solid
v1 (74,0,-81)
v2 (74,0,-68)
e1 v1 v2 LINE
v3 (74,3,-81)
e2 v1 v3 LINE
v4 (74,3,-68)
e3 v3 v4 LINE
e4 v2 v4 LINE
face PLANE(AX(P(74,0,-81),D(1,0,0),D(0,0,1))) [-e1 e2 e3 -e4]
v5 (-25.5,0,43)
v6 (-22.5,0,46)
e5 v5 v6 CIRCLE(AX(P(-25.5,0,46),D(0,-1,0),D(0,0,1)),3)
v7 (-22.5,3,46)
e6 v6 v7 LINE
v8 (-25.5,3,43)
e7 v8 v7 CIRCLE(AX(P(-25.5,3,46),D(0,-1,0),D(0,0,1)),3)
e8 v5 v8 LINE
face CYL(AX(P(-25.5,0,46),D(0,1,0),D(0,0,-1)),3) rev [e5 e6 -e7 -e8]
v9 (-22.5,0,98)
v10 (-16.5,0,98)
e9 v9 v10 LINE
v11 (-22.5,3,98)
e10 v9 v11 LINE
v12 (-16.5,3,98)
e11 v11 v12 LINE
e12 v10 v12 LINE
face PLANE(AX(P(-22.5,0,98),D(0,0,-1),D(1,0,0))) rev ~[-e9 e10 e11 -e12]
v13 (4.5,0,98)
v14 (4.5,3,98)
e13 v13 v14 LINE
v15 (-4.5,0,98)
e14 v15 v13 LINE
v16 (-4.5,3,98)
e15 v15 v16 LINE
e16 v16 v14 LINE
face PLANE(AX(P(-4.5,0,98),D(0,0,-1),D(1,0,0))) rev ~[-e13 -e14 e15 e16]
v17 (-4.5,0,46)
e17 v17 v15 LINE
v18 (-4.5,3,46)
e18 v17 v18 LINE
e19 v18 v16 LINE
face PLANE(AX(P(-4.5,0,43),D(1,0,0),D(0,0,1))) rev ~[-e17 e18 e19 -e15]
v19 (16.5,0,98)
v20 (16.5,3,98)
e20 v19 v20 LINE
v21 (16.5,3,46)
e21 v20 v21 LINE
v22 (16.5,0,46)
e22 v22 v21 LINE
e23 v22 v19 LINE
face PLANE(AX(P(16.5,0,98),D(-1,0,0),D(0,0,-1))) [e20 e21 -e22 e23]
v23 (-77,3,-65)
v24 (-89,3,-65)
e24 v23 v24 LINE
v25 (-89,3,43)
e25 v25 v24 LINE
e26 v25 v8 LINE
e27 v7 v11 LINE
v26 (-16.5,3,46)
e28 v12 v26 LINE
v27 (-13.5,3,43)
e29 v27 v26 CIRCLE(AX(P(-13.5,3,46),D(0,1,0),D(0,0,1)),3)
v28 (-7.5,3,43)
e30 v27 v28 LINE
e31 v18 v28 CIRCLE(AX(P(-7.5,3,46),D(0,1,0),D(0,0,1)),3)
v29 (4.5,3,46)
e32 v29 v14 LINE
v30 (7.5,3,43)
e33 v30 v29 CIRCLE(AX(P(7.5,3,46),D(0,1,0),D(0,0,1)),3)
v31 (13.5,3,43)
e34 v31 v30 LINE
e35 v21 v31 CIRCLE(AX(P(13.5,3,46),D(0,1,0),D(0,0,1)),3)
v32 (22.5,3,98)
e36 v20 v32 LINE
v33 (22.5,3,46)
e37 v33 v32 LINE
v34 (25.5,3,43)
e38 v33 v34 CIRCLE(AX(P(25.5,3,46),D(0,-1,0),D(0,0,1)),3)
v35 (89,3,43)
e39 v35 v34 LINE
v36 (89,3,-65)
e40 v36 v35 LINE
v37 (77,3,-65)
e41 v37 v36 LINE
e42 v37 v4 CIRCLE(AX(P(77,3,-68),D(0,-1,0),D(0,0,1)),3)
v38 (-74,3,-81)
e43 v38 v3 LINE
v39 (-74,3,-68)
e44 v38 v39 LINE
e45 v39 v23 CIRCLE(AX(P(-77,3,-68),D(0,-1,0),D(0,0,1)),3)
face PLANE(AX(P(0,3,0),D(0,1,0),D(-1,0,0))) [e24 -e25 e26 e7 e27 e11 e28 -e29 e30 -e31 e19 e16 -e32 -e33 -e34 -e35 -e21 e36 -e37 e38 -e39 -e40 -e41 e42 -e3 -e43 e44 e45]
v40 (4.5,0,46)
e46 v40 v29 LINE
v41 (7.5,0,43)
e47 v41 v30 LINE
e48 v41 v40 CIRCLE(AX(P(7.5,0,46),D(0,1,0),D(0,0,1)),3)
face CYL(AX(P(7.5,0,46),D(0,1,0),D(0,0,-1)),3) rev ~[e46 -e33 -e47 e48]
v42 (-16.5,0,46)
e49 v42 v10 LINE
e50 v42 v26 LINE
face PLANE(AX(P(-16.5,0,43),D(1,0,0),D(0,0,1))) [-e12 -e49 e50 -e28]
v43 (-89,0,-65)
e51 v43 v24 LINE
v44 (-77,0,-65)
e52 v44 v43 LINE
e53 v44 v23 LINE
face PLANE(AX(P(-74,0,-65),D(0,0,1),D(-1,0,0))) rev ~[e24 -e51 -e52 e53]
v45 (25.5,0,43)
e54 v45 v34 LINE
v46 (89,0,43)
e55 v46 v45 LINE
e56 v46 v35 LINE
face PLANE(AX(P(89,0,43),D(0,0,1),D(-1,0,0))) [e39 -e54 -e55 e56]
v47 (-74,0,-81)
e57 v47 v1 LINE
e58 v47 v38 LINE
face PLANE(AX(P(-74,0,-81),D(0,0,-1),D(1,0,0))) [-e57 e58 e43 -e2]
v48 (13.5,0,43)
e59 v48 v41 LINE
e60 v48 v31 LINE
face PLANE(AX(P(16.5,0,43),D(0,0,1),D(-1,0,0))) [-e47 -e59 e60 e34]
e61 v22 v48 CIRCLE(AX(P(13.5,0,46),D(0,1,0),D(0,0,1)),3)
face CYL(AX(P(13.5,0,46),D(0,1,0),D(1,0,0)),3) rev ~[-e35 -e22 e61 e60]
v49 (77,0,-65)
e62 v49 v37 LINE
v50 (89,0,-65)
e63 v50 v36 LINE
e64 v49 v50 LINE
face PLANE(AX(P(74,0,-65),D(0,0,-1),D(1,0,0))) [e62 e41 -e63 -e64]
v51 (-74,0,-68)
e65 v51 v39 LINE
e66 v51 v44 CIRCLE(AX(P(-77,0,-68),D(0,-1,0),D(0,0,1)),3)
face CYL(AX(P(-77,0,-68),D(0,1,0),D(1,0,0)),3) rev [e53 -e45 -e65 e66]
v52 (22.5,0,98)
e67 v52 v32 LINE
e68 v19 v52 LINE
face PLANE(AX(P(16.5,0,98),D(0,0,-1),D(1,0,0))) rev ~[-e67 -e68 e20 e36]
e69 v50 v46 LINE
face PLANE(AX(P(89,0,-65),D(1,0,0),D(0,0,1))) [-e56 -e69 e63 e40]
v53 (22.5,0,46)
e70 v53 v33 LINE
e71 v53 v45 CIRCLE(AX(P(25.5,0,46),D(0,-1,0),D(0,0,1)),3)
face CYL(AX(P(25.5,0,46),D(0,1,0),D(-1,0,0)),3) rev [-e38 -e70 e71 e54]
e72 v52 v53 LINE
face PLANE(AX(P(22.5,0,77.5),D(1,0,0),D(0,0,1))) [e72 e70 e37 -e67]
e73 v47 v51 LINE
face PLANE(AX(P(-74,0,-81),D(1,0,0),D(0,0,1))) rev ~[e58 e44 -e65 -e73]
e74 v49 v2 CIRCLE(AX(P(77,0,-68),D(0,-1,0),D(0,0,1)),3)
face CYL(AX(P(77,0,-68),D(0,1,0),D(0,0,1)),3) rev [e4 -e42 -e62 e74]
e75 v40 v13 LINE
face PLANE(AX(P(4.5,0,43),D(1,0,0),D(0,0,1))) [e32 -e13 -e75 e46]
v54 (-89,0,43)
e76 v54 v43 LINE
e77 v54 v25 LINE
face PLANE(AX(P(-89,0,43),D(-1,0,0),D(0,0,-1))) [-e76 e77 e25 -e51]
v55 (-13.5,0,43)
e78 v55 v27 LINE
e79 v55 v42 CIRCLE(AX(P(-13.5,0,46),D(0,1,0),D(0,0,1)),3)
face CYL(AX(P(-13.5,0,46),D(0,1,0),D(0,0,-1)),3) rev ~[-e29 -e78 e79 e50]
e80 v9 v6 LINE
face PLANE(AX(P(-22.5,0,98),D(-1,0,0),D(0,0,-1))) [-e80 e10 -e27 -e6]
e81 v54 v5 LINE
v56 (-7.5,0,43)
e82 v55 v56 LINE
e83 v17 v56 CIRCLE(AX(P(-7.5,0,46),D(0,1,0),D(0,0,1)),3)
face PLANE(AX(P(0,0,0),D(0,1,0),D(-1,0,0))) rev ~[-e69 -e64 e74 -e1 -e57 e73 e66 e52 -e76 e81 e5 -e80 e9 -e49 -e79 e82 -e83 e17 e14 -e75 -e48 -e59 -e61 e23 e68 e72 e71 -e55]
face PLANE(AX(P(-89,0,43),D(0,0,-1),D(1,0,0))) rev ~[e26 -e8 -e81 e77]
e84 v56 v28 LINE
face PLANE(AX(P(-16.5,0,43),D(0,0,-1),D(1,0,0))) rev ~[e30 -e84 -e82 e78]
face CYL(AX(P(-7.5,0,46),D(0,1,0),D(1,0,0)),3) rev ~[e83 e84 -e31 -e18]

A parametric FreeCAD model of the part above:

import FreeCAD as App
import Part
import Sketcher
from FreeCAD import Vector


def edges_at(feature, points):
    """Names of the edges that pass closest to the given points."""
    edges = feature.Shape.Edges
    near = lambda p: min(range(len(edges)), key=lambda i: edges[i].distToShape(Part.Vertex(*p))[0])
    return sorted({f"Edge{near(p) + 1}" for p in points})


def add_polygon(sketch, points):
    """Adds a closed chain of lines whose ends are joined by coincident constraints."""
    first, n = sketch.GeometryCount, len(points)
    for a, b in zip(points, points[1:] + points[:1]):
        sketch.addGeometry(Part.LineSegment(App.Vector(*a, 0), App.Vector(*b, 0)), False)
    for i in range(n):
        sketch.addConstraint(Sketcher.Constraint("Coincident", first + i, 2, first + (i + 1) % n, 1))

doc = App.newDocument("Part")
body = doc.addObject("PartDesign::Body", "Body")

# Sketch on XZ plane
sketch1 = body.newObject("Sketcher::SketchObject", "Sketch")
sketch1.AttachmentSupport = (doc.getObject("XZ_Plane"), [""])
sketch1.MapMode = "FlatFace"
add_polygon(sketch1, [(16.5, 98), (22.5, 98), (22.5, 43), (89, 43), (89, -65), (74, -65), (74, -81), (-74, -81), (-74, -65), (-89, -65), (-89, 43), (-22.5, 43), (-22.5, 98), (-16.5, 98), (-16.5, 43), (-4.5, 43), (-4.5, 98), (4.5, 98), (4.5, 43), (16.5, 43)])  # lines 0-19
sketch1.addConstraint([
    Sketcher.Constraint("Horizontal", 0),
    Sketcher.Constraint("Vertical", 1),
    Sketcher.Constraint("Horizontal", 2),
    Sketcher.Constraint("Vertical", 3),
    Sketcher.Constraint("Horizontal", 4),
    Sketcher.Constraint("Vertical", 5),
    Sketcher.Constraint("Horizontal", 6),
    Sketcher.Constraint("Vertical", 7),
    Sketcher.Constraint("Horizontal", 8),
    Sketcher.Constraint("Vertical", 9),
    Sketcher.Constraint("Horizontal", 10),
    Sketcher.Constraint("Vertical", 11),
    Sketcher.Constraint("Horizontal", 12),
    Sketcher.Constraint("Vertical", 13),
    Sketcher.Constraint("Horizontal", 14),
    Sketcher.Constraint("Vertical", 15),
    Sketcher.Constraint("Horizontal", 16),
    Sketcher.Constraint("Vertical", 17),
    Sketcher.Constraint("Horizontal", 18),
    Sketcher.Constraint("Vertical", 19),
    Sketcher.Constraint("Symmetric", 4, 2, 7, 2, -2),
    Sketcher.Constraint("Symmetric", 2, 2, 9, 2, -2),
    Sketcher.Constraint("Symmetric", 0, 2, 11, 2, -2),
    Sketcher.Constraint("Symmetric", 14, 2, 17, 2, -2),
    Sketcher.Constraint("Horizontal", 10, 2, 13, 2),
    Sketcher.Constraint("Horizontal", 12, 2, 15, 2),
    Sketcher.Constraint("Equal", 0, 12),
    Sketcher.Constraint("DistanceX", 4, 2, 4, 1, 15.0),
    Sketcher.Constraint("DistanceX", 16, 1, 16, 2, 9.0),
    Sketcher.Constraint("DistanceY", 1, 2, 1, 1, 55.0),
    Sketcher.Constraint("DistanceY", 5, 2, 5, 1, 16.0),
    Sketcher.Constraint("DistanceX", 10, 2, 14, 2, 18.0),
    Sketcher.Constraint("DistanceX", 0, 1, 0, 2, 6.0),
    Sketcher.Constraint("DistanceX", 6, 2, 6, 1, 148.0),
    Sketcher.Constraint("DistanceY", 3, 2, 3, 1, 108.0),
    Sketcher.Constraint("DistanceY", -1, 1, 0, 2, 98.0),
])
pad1 = body.newObject("PartDesign::Pad", "Pad")
pad1.Profile = sketch1
pad1.Length = 3
pad1.Reversed = True
doc.recompute()

fillet = body.newObject("PartDesign::Fillet", "Fillet")
fillet.Base = (pad1, edges_at(pad1, [
    (22.5, 1.5, 43),
    (-22.5, 1.5, 43),
    (-16.5, 1.5, 43),
    (-4.5, 1.5, 43),
    (4.5, 1.5, 43),
    (16.5, 1.5, 43),
]))
fillet.Radius = 3
doc.recompute()

fillet2 = body.newObject("PartDesign::Fillet", "Fillet001")
fillet2.Base = (fillet, edges_at(fillet, [(74, 1.5, -65), (-74, 1.5, -65)]))
fillet2.Radius = 3

doc.recompute()
